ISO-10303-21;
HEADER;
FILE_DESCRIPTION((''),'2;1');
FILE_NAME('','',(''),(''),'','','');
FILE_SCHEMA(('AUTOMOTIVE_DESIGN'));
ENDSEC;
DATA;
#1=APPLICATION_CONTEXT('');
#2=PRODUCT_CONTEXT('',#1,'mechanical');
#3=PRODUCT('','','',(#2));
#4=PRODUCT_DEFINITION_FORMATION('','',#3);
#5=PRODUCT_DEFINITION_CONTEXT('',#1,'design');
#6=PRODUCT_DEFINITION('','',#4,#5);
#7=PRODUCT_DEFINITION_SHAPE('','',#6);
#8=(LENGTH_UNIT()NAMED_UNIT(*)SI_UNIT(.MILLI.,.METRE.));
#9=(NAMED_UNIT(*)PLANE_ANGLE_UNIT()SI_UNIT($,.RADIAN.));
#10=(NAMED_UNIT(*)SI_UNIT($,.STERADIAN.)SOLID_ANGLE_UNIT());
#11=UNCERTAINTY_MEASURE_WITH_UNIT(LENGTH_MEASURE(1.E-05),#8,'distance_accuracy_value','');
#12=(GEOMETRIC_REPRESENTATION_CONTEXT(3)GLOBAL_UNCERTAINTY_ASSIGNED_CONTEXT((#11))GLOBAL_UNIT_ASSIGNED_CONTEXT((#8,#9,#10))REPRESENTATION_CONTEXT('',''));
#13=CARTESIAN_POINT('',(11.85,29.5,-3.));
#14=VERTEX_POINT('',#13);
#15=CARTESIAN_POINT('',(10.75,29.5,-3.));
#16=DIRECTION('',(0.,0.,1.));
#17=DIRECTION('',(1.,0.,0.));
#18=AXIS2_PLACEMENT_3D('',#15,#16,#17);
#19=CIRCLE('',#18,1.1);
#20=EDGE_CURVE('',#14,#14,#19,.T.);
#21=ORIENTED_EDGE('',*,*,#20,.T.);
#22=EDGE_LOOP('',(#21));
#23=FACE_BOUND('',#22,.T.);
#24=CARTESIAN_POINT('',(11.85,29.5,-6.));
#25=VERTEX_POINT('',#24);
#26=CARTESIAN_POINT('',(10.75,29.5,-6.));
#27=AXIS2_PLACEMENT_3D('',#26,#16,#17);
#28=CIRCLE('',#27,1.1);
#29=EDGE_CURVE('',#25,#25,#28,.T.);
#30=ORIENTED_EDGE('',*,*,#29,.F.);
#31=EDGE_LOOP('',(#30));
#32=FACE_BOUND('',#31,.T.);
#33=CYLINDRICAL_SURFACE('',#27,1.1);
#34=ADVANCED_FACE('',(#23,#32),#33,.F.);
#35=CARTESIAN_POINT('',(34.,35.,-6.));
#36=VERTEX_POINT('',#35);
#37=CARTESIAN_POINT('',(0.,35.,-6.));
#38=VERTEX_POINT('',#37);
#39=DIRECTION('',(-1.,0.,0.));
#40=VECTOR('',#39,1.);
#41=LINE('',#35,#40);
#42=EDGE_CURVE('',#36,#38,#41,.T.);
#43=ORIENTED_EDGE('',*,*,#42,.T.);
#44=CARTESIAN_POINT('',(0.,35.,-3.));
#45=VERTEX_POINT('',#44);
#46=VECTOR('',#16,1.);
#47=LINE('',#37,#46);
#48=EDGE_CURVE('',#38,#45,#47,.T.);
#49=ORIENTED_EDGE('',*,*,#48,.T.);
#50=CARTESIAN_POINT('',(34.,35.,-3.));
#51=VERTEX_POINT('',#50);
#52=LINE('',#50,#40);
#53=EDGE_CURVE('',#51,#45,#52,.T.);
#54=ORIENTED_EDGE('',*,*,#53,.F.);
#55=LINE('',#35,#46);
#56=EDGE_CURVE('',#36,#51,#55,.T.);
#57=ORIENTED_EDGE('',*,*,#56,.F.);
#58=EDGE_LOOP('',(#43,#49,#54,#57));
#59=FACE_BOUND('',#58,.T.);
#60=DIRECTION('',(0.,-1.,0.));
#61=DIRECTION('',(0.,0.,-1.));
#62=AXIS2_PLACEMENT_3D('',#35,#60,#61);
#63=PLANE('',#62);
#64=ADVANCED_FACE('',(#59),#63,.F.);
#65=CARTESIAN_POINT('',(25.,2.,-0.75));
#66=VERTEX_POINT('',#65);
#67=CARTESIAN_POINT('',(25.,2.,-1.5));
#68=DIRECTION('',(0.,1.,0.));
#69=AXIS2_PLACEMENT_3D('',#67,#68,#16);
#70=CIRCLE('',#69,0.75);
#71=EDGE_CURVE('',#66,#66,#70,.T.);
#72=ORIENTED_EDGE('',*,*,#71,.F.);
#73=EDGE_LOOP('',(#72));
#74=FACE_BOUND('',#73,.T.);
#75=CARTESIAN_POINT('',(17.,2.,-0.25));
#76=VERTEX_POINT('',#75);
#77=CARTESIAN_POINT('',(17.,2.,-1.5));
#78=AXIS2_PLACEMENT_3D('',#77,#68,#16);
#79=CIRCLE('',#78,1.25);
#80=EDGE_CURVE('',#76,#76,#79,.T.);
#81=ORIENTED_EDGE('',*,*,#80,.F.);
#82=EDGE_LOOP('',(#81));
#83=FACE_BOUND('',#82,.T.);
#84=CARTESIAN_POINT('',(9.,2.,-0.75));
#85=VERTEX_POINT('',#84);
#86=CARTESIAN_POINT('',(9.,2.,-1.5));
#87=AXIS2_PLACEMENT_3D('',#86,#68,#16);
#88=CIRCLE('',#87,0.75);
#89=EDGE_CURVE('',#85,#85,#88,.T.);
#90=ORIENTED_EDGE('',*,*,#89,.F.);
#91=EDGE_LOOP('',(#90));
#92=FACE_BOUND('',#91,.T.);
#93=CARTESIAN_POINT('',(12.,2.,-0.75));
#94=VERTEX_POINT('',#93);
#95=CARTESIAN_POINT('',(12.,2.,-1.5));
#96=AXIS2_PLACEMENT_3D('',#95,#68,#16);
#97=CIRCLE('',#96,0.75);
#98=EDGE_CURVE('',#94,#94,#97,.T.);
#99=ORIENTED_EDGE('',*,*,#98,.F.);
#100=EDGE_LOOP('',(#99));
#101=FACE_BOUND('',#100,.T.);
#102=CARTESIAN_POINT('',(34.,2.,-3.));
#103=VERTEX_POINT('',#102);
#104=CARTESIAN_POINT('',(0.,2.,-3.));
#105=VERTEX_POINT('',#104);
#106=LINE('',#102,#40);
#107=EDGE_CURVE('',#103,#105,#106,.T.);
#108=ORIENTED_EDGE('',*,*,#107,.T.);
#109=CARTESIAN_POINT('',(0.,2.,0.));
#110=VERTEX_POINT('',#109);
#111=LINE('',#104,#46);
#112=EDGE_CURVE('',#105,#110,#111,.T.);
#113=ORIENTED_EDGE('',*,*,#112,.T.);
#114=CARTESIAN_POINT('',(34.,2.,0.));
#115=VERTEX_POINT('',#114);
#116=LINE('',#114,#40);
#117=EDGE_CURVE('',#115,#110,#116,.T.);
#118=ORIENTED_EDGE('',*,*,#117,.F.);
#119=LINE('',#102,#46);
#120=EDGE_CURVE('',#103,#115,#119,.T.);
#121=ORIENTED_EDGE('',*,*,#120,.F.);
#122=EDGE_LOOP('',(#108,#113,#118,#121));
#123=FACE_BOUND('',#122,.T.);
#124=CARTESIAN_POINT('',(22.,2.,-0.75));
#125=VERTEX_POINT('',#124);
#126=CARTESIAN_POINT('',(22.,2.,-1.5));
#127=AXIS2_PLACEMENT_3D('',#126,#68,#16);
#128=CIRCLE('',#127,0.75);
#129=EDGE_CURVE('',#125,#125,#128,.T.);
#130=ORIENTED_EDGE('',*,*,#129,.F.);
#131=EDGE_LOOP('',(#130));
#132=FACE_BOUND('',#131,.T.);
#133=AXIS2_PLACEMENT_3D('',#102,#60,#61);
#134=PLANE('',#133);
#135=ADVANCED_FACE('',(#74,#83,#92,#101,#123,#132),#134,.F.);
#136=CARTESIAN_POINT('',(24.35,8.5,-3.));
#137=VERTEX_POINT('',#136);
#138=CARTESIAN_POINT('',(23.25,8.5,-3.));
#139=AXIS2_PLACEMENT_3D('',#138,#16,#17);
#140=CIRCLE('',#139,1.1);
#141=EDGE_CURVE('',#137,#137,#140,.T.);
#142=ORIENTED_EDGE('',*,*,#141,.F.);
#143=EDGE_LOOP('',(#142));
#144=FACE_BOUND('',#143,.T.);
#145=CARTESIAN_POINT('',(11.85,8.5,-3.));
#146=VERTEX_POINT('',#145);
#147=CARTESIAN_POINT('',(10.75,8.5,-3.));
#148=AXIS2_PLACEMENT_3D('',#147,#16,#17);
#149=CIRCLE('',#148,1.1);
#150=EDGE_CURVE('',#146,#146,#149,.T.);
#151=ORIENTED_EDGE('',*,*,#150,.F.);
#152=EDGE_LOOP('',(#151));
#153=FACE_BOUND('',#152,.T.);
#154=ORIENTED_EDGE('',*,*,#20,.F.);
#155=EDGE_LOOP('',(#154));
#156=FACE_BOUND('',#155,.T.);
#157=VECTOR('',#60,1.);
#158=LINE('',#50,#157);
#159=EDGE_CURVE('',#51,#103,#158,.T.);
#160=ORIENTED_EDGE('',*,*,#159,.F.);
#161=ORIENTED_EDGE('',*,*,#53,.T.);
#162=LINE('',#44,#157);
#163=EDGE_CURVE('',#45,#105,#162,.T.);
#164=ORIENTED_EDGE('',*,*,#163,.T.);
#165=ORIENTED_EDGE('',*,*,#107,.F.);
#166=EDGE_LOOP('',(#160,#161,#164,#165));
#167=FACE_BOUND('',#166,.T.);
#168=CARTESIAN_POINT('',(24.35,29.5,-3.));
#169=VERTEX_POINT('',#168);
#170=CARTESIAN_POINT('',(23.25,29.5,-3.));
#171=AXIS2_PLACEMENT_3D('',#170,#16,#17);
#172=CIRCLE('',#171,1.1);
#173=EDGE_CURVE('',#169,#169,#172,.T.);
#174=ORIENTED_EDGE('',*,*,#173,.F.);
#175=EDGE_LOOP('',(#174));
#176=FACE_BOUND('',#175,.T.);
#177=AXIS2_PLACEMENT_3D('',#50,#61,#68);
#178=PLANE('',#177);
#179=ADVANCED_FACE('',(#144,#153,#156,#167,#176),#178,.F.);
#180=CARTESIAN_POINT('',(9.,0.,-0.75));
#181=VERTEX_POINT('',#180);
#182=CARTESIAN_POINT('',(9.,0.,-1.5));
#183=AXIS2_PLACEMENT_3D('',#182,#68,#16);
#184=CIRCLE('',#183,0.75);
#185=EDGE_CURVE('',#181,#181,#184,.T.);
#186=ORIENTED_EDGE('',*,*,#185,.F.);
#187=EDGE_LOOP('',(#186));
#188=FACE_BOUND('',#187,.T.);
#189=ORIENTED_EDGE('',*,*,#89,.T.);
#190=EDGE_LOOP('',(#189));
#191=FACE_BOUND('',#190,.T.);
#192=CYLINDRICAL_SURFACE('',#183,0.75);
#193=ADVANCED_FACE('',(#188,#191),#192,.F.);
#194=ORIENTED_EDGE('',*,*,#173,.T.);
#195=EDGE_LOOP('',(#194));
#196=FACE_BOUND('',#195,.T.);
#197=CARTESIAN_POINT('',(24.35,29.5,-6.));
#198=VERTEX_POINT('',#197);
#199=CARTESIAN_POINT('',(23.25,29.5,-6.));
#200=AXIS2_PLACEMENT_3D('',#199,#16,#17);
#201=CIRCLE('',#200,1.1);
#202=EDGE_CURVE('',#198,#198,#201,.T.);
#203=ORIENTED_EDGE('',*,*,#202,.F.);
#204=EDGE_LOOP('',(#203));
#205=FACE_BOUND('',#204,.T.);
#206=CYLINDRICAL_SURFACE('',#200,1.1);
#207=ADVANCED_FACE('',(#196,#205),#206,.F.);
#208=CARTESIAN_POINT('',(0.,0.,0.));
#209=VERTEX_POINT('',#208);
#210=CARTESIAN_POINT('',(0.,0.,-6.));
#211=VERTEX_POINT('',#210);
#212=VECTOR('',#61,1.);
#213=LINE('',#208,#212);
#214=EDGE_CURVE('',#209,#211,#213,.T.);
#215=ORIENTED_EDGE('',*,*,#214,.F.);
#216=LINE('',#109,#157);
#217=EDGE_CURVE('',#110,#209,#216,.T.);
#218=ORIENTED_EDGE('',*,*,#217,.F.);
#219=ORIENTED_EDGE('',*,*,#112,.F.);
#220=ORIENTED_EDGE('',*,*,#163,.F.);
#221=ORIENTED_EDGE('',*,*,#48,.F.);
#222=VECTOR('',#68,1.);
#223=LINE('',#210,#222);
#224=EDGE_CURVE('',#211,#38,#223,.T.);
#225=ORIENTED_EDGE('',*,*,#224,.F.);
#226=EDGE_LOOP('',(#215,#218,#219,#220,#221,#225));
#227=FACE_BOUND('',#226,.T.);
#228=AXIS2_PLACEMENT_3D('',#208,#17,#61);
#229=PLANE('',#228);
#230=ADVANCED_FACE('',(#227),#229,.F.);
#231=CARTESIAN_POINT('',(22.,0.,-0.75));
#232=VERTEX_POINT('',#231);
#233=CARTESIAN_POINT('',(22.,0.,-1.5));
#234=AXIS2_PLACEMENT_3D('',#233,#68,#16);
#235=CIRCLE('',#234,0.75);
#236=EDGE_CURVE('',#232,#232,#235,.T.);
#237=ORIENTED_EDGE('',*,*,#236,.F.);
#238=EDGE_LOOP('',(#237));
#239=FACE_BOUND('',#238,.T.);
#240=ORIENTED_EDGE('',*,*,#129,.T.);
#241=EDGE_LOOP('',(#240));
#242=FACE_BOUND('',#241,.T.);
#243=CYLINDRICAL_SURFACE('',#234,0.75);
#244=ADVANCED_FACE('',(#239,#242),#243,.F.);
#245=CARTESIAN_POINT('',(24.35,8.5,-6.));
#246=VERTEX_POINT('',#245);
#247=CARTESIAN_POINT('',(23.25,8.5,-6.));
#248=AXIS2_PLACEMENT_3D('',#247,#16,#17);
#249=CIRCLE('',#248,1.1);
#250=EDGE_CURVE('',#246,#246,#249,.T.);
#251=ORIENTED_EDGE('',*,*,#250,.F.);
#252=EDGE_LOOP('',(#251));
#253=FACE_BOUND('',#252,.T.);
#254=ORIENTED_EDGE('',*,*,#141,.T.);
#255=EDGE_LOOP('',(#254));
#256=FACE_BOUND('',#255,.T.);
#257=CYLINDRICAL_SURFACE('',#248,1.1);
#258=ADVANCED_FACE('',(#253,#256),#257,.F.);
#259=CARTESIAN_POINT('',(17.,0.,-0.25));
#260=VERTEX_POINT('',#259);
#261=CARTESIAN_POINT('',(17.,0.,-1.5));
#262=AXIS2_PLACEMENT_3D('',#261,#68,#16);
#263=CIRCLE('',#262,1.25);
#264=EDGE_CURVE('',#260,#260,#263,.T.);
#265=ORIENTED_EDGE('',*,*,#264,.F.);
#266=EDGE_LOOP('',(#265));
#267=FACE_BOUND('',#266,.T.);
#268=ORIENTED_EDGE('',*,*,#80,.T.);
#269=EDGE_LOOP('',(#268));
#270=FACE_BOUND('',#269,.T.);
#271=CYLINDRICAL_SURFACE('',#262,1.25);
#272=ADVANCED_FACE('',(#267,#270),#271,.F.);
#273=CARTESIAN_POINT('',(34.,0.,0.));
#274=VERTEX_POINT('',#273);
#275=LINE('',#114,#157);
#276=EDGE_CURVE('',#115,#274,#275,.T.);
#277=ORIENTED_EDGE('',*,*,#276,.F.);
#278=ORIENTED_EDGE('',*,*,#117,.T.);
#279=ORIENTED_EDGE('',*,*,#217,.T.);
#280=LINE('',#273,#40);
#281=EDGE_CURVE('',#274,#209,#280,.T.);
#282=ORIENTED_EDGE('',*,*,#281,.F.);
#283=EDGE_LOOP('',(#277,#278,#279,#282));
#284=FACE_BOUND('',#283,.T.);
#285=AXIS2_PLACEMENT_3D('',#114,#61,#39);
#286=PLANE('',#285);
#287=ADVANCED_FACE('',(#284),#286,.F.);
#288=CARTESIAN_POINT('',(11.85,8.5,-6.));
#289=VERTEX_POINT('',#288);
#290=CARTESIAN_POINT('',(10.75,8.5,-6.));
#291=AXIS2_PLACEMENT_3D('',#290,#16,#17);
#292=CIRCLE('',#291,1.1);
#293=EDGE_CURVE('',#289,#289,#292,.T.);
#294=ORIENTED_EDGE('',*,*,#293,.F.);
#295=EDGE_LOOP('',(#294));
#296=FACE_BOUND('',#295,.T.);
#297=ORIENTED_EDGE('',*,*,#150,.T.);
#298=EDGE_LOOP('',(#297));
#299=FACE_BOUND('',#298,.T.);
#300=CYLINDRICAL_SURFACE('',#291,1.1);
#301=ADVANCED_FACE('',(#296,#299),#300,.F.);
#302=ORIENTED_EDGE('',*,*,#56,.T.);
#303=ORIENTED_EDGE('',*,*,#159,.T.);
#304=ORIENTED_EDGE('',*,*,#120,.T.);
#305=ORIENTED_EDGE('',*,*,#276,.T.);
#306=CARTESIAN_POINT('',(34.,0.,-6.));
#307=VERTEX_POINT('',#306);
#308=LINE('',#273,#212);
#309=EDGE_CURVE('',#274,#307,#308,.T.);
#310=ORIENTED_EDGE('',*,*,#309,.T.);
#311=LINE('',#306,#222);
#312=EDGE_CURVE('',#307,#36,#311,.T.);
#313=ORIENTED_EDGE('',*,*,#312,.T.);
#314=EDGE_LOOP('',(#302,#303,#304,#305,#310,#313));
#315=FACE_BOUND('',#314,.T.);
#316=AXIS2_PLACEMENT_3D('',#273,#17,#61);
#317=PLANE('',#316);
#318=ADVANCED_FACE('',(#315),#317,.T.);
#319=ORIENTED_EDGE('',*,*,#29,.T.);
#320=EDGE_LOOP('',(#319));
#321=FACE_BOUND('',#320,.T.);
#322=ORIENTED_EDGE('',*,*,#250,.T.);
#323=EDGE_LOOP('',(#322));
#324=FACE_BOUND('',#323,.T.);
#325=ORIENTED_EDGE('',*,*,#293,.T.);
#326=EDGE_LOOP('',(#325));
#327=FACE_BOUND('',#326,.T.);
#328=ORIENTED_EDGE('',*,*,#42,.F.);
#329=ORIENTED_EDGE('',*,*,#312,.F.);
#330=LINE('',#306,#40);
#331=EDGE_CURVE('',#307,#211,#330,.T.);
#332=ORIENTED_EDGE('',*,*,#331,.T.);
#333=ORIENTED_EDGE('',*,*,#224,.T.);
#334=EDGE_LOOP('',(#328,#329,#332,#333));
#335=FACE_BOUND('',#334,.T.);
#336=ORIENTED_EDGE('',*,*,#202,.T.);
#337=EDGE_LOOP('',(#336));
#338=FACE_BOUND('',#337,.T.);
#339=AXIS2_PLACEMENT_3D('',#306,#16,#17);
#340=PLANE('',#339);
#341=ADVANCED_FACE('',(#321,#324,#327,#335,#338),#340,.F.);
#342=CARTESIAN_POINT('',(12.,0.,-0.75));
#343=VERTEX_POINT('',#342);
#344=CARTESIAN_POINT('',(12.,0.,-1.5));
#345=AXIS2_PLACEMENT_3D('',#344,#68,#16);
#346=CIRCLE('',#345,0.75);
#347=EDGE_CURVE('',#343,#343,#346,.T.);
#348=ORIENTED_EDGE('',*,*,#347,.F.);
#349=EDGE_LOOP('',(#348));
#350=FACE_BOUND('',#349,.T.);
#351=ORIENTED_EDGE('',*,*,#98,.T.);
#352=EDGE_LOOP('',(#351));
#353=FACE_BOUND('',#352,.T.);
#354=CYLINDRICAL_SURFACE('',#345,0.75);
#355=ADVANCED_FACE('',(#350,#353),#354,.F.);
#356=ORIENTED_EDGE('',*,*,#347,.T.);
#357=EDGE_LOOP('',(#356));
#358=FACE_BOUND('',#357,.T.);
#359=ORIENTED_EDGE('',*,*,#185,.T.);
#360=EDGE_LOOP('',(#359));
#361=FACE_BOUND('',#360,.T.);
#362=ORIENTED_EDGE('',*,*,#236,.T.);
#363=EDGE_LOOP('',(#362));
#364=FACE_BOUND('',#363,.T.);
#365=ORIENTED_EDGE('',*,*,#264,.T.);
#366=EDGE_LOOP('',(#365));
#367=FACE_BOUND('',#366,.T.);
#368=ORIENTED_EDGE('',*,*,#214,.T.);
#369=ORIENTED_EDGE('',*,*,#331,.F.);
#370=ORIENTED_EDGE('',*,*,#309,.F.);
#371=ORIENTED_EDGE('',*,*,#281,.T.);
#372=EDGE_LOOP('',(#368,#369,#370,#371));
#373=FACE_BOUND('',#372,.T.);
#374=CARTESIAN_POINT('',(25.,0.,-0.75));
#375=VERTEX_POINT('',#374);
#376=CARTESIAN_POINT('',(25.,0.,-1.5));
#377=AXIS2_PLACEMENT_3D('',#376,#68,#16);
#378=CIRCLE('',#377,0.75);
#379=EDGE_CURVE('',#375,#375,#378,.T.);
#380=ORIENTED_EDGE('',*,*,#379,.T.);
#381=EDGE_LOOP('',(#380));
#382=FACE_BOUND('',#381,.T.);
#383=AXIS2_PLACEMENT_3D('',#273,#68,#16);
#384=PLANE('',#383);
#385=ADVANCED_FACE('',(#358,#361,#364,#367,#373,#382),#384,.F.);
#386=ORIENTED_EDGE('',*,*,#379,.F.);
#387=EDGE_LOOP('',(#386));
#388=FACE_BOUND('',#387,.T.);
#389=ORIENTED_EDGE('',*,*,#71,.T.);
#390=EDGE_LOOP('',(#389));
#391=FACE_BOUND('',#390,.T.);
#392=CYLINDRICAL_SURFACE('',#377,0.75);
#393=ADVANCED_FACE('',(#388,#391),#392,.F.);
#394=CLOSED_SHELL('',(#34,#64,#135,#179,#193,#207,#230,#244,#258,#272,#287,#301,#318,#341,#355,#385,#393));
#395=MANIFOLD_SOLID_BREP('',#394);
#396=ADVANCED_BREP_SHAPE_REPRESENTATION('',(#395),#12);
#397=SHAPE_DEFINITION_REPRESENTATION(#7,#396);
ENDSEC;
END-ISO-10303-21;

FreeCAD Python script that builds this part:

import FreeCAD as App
import Part
import Sketcher
Q = App.Units.Quantity


def add_polygon(sketch, points):
    """Adds a closed chain of lines whose ends are joined by coincident constraints."""
    first, n = sketch.GeometryCount, len(points)
    for a, b in zip(points, points[1:] + points[:1]):
        sketch.addGeometry(Part.LineSegment(App.Vector(*a, 0), App.Vector(*b, 0)), False)
    for i in range(n):
        sketch.addConstraint(Sketcher.Constraint("Coincident", first + i, 2, first + (i + 1) % n, 1))

doc = App.newDocument("Part")
body = doc.addObject("PartDesign::Body", "Body")

# Sketch on YZ plane
sketch1 = body.newObject("Sketcher::SketchObject", "Sketch")
sketch1.AttachmentSupport = (doc.getObject("YZ_Plane"), [""])
sketch1.MapMode = "FlatFace"
add_polygon(sketch1, [(0, 0), (0, -6), (35, -6), (35, -3), (2, -3), (2, 0)])  # lines 0-5
sketch1.addConstraint(Sketcher.Constraint("Vertical", 0))
sketch1.addConstraint(Sketcher.Constraint("Horizontal", 1))
sketch1.addConstraint(Sketcher.Constraint("Vertical", 2))
sketch1.addConstraint(Sketcher.Constraint("Horizontal", 3))
sketch1.addConstraint(Sketcher.Constraint("Vertical", 4))
sketch1.addConstraint(Sketcher.Constraint("Horizontal", 5))
sketch1.addConstraint(Sketcher.Constraint("Coincident", 5, 2, -1, 1))
sketch1.addConstraint(Sketcher.Constraint("Equal", 2, 4))
sketch1.addConstraint(Sketcher.Constraint("DistanceX", 1, 1, 1, 2, Q("35 mm")))
sketch1.addConstraint(Sketcher.Constraint("DistanceX", 3, 2, 3, 1, Q("33 mm")))
sketch1.addConstraint(Sketcher.Constraint("DistanceY", 0, 2, 0, 1, Q("6 mm")))
pad1 = body.newObject("PartDesign::Pad", "Pad")
pad1.Profile = sketch1
pad1.Length = 34

# Sketch on XY plane
sketch2 = body.newObject("Sketcher::SketchObject", "Sketch001")
sketch2.AttachmentSupport = (doc.getObject("XY_Plane"), [""])
sketch2.MapMode = "FlatFace"
sketch2.AttachmentOffset = App.Placement(App.Vector(0, 0, -3), App.Rotation())
sketch2.addGeometry(Part.Circle(App.Vector(23.2, 29.5, 0), App.Vector(0, 0, 1), 1.1), False)
sketch2.addGeometry(Part.Circle(App.Vector(10.8, 29.5, 0), App.Vector(0, 0, 1), 1.1), False)
sketch2.addGeometry(Part.Circle(App.Vector(10.8, 8.5, 0), App.Vector(0, 0, 1), 1.1), False)
sketch2.addGeometry(Part.Circle(App.Vector(23.2, 8.5, 0), App.Vector(0, 0, 1), 1.1), False)
sketch2.addConstraint(Sketcher.Constraint("Equal", 0, 1))
sketch2.addConstraint(Sketcher.Constraint("Equal", 1, 2))
sketch2.addConstraint(Sketcher.Constraint("Equal", 2, 3))
sketch2.addConstraint(Sketcher.Constraint("Horizontal", 0, 3, 1, 3))
sketch2.addConstraint(Sketcher.Constraint("Horizontal", 2, 3, 3, 3))
sketch2.addConstraint(Sketcher.Constraint("Vertical", 1, 3, 2, 3))
sketch2.addConstraint(Sketcher.Constraint("Vertical", 0, 3, 3, 3))
sketch2.addConstraint(Sketcher.Constraint("Diameter", 0, Q("2.2 mm")))
sketch2.addConstraint(Sketcher.Constraint("DistanceY", 2, 3, 1, 3, Q("21 mm")))
sketch2.addConstraint(Sketcher.Constraint("DistanceY", -1, 1, 0, 3, Q("29.5 mm")))
sketch2.addConstraint(Sketcher.Constraint("DistanceX", 1, 3, 0, 3, Q("12.5 mm")))
sketch2.addConstraint(Sketcher.Constraint("DistanceX", -1, 1, 0, 3, Q("23.25 mm")))
pocket1 = body.newObject("PartDesign::Pocket", "Pocket")
pocket1.Profile = sketch2
pocket1.Type = "ThroughAll"

# Sketch on XZ plane
sketch3 = body.newObject("Sketcher::SketchObject", "Sketch002")
sketch3.AttachmentSupport = (doc.getObject("XZ_Plane"), [""])
sketch3.MapMode = "FlatFace"
sketch3.AttachmentOffset = App.Placement(App.Vector(0, 0, -2), App.Rotation())
sketch3.addGeometry(Part.Circle(App.Vector(17, -1.5, 0), App.Vector(0, 0, 1), 1.2), False)
sketch3.addGeometry(Part.Circle(App.Vector(22, -1.5, 0), App.Vector(0, 0, 1), 0.8), False)
sketch3.addGeometry(Part.Circle(App.Vector(25, -1.5, 0), App.Vector(0, 0, 1), 0.8), False)
sketch3.addGeometry(Part.Circle(App.Vector(12, -1.5, 0), App.Vector(0, 0, 1), 0.8), False)
sketch3.addGeometry(Part.Circle(App.Vector(9, -1.5, 0), App.Vector(0, 0, 1), 0.8), False)
sketch3.addConstraint(Sketcher.Constraint("Equal", 1, 2))
sketch3.addConstraint(Sketcher.Constraint("Equal", 2, 3))
sketch3.addConstraint(Sketcher.Constraint("Equal", 3, 4))
sketch3.addConstraint(Sketcher.Constraint("Horizontal", 0, 3, 1, 3))
sketch3.addConstraint(Sketcher.Constraint("Horizontal", 1, 3, 2, 3))
sketch3.addConstraint(Sketcher.Constraint("Horizontal", 2, 3, 3, 3))
sketch3.addConstraint(Sketcher.Constraint("Horizontal", 3, 3, 4, 3))
sketch3.addConstraint(Sketcher.Constraint("Diameter", 0, Q("2.5 mm")))
sketch3.addConstraint(Sketcher.Constraint("Diameter", 1, Q("1.5 mm")))
sketch3.addConstraint(Sketcher.Constraint("DistanceX", -1, 1, 0, 3, Q("17 mm")))
sketch3.addConstraint(Sketcher.Constraint("DistanceX", -1, 1, 1, 3, Q("22 mm")))
sketch3.addConstraint(Sketcher.Constraint("DistanceX", -1, 1, 2, 3, Q("25 mm")))
sketch3.addConstraint(Sketcher.Constraint("DistanceX", -1, 1, 3, 3, Q("12 mm")))
sketch3.addConstraint(Sketcher.Constraint("DistanceX", -1, 1, 4, 3, Q("9 mm")))
sketch3.addConstraint(Sketcher.Constraint("DistanceY", 0, 3, -1, 1, Q("1.5 mm")))
pocket2 = body.newObject("PartDesign::Pocket", "Pocket001")
pocket2.Profile = sketch3
pocket2.Type = "ThroughAll"
pocket2.Reversed = True

doc.recompute()
